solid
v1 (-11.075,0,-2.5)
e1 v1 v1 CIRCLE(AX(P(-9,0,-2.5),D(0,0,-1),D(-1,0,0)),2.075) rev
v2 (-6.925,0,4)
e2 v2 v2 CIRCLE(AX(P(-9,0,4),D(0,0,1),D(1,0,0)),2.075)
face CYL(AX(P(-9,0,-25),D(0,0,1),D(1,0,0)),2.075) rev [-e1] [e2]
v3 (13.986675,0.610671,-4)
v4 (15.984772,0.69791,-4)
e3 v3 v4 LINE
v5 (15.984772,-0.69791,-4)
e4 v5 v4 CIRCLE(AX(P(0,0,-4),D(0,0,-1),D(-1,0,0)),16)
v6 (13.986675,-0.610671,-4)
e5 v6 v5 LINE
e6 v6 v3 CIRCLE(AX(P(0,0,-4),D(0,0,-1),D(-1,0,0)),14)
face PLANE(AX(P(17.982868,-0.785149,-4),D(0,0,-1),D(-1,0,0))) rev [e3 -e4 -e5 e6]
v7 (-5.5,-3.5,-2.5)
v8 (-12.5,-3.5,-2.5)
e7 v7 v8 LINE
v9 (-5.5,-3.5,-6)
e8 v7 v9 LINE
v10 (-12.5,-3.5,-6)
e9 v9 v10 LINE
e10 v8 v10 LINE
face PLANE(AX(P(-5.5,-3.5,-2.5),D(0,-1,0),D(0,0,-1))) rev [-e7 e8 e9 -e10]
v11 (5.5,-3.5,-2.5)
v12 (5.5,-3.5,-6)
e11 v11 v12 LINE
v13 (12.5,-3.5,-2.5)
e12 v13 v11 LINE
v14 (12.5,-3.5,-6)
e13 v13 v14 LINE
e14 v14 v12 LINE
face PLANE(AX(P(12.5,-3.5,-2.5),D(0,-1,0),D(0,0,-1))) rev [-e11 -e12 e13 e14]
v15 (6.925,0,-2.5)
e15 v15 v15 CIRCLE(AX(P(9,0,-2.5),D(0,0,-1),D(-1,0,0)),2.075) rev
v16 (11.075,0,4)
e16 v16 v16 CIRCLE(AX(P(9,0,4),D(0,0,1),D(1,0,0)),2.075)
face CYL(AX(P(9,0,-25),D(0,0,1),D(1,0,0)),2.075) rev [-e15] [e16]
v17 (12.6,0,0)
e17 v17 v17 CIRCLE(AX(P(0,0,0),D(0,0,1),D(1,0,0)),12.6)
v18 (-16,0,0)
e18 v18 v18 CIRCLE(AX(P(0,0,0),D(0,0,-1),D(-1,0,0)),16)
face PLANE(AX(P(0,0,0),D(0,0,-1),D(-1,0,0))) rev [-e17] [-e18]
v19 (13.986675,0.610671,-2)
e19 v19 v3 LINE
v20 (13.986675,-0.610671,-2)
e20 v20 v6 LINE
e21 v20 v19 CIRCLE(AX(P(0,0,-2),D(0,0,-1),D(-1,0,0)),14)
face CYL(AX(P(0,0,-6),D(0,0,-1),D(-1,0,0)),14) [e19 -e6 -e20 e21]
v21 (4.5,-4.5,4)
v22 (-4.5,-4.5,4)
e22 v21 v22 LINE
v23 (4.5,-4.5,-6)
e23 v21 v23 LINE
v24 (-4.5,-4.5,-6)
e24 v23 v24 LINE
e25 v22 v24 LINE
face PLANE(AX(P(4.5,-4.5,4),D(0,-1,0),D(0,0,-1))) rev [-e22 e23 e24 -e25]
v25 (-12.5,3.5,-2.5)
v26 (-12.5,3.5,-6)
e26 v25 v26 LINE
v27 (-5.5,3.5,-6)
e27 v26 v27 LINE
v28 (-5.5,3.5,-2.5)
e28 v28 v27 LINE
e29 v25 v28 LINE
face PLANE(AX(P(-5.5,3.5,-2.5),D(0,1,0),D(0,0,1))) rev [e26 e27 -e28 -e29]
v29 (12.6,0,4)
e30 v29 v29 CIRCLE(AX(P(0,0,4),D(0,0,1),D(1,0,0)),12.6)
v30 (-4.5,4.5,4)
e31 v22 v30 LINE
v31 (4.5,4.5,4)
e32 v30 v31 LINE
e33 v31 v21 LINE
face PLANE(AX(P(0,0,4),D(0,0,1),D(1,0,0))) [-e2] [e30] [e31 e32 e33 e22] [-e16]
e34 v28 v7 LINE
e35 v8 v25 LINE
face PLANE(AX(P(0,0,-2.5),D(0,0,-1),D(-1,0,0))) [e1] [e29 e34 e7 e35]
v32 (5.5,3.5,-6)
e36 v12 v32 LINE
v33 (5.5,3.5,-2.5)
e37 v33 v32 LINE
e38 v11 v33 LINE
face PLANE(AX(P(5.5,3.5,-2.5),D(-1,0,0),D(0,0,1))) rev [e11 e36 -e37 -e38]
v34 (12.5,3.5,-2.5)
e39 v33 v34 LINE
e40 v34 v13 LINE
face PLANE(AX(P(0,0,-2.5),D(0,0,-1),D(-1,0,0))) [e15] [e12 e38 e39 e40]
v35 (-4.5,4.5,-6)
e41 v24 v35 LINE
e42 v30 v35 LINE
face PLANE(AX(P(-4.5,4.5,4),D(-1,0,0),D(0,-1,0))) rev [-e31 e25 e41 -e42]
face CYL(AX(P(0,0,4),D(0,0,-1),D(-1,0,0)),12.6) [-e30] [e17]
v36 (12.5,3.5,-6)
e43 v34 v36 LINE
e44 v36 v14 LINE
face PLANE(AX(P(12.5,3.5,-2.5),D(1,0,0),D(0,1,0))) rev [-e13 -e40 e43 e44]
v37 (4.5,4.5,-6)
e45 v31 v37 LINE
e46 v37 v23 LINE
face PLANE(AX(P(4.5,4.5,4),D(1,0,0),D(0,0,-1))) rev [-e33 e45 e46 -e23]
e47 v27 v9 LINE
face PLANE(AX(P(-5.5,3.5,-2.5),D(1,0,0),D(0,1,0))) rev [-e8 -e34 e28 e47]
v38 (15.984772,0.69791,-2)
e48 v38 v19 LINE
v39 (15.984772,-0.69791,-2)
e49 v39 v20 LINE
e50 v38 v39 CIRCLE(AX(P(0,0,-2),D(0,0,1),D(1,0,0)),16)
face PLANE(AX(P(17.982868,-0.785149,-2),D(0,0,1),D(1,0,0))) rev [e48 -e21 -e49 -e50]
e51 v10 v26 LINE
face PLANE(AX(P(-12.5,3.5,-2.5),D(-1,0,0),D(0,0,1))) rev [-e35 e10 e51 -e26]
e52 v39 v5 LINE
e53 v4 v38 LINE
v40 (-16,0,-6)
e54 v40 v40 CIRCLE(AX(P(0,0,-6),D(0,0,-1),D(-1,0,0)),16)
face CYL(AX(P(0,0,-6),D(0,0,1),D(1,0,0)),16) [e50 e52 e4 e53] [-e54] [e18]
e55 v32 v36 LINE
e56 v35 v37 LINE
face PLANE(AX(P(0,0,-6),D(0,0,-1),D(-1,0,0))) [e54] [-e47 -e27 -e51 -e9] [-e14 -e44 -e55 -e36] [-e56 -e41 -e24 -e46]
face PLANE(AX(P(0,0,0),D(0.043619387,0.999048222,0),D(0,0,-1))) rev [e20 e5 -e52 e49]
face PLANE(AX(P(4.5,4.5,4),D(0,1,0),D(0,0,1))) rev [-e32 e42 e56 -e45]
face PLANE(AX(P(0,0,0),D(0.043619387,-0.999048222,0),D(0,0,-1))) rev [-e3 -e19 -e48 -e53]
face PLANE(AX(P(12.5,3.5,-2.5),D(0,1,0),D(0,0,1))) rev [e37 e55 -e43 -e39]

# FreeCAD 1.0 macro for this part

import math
import FreeCAD as App
import Part
import Sketcher

V = App.Vector
Q = App.Units.Quantity


def add_polygon(sketch, points):
    """Adds a closed chain of lines whose ends are joined by coincident constraints."""
    first, n = sketch.GeometryCount, len(points)
    for a, b in zip(points, points[1:] + points[:1]):
        sketch.addGeometry(Part.LineSegment(App.Vector(*a, 0), App.Vector(*b, 0)), False)
    for i in range(n):
        sketch.addConstraint(Sketcher.Constraint("Coincident", first + i, 2, first + (i + 1) % n, 1))

doc = App.newDocument("Part")
body = doc.addObject("PartDesign::Body", "Body")

# Sketch on XY plane
sketch1 = body.newObject("Sketcher::SketchObject", "Sketch")
sketch1.AttachmentSupport = (doc.getObject("XY_Plane"), [""])
sketch1.MapMode = "FlatFace"
sketch1.addGeometry(Part.Circle(V(0, 0, 0), V(0, 0, 1), 13), False)
sketch1.addConstraint(Sketcher.Constraint("Coincident", 0, 3, -1, 1))
sketch1.addConstraint(Sketcher.Constraint("Diameter", 0, Q("25.2 mm")))
pad1 = body.newObject("PartDesign::Pad", "Pad")
pad1.Profile = sketch1
pad1.Length = 4

# Sketch on XY plane
sketch2 = body.newObject("Sketcher::SketchObject", "Sketch001")
sketch2.AttachmentSupport = (doc.getObject("XY_Plane"), [""])
sketch2.MapMode = "FlatFace"
sketch2.addGeometry(Part.Circle(V(0, 0, 0), V(0, 0, 1), 16), False)
sketch2.addConstraint(Sketcher.Constraint("Coincident", 0, 3, -1, 1))
sketch2.addConstraint(Sketcher.Constraint("Diameter", 0, Q("32 mm")))
pad2 = body.newObject("PartDesign::Pad", "Pad001")
pad2.Profile = sketch2
pad2.Length = 6
pad2.Reversed = True

# Sketch on XY plane
sketch3 = body.newObject("Sketcher::SketchObject", "Sketch002")
sketch3.AttachmentSupport = (doc.getObject("XY_Plane"), [""])
sketch3.MapMode = "FlatFace"
sketch3.AttachmentOffset = App.Placement(V(0, 0, 4), App.Rotation())
sketch3.addGeometry(Part.Circle(V(-9, 0, 0), V(0, 0, 1), 2.1), False)
sketch3.addGeometry(Part.Circle(V(9, 0, 0), V(0, 0, 1), 2.1), False)
sketch3.addConstraint(Sketcher.Constraint("Equal", 0, 1))
sketch3.addConstraint(Sketcher.Constraint("Symmetric", 0, 3, 1, 3, -1, 1))
sketch3.addConstraint(Sketcher.Constraint("PointOnObject", 0, 3, -1))
sketch3.addConstraint(Sketcher.Constraint("Diameter", 0, Q("4.15 mm")))
sketch3.addConstraint(Sketcher.Constraint("DistanceX", 0, 3, -1, 1, Q("9 mm")))
pocket1 = body.newObject("PartDesign::Pocket", "Pocket")
pocket1.Profile = sketch3
pocket1.Length = 29

# Sketch on XY plane
sketch4 = body.newObject("Sketcher::SketchObject", "Sketch003")
sketch4.AttachmentSupport = (doc.getObject("XY_Plane"), [""])
sketch4.MapMode = "FlatFace"
sketch4.AttachmentOffset = App.Placement(V(0, 0, -6), App.Rotation())
add_polygon(sketch4, [(12, 4), (12, -4), (6, -4), (6, 4)])  # lines 0-3
add_polygon(sketch4, [(-6, 4), (-6, -4), (-12, -4), (-12, 4)])  # lines 4-7
sketch4.addConstraint(Sketcher.Constraint("Vertical", 0))
sketch4.addConstraint(Sketcher.Constraint("Horizontal", 1))
sketch4.addConstraint(Sketcher.Constraint("Vertical", 2))
sketch4.addConstraint(Sketcher.Constraint("Horizontal", 3))
sketch4.addConstraint(Sketcher.Constraint("Vertical", 4))
sketch4.addConstraint(Sketcher.Constraint("Horizontal", 5))
sketch4.addConstraint(Sketcher.Constraint("Vertical", 6))
sketch4.addConstraint(Sketcher.Constraint("Horizontal", 7))
sketch4.addConstraint(Sketcher.Constraint("Symmetric", 2, 2, 4, 2, -1, 1))
sketch4.addConstraint(Sketcher.Constraint("Symmetric", 0, 2, 6, 2, -1, 1))
sketch4.addConstraint(Sketcher.Constraint("Horizontal", 1, 2, 4, 2))
sketch4.addConstraint(Sketcher.Constraint("Equal", 7, 0))
sketch4.addConstraint(Sketcher.Constraint("DistanceX", 1, 2, 1, 1, Q("7 mm")))
sketch4.addConstraint(Sketcher.Constraint("DistanceX", 4, 2, 1, 2, Q("11 mm")))
pocket2 = body.newObject("PartDesign::Pocket", "Pocket001")
pocket2.Profile = sketch4
pocket2.Length = 3.5
pocket2.Reversed = True

# Sketch on XY plane
sketch5 = body.newObject("Sketcher::SketchObject", "Sketch004")
sketch5.AttachmentSupport = (doc.getObject("XY_Plane"), [""])
sketch5.MapMode = "FlatFace"
sketch5.AttachmentOffset = App.Placement(V(0, 0, -6), App.Rotation())
sketch5.addGeometry(Part.LineSegment(V(1.5, -0.7, 0), V(-1.5, -0.7, 0)), False)
sketch5.addGeometry(Part.ArcOfCircle(Part.Circle(V(0, 0, 0), V(0, 0, 1), 1.6), math.radians(-26), math.radians(206)), False)
sketch5.addConstraint(Sketcher.Constraint("Coincident", 0, 1, 1, 1))
sketch5.addConstraint(Sketcher.Constraint("Coincident", 1, 2, 0, 2))
sketch5.addConstraint(Sketcher.Constraint("Horizontal", 0))
sketch5.addConstraint(Sketcher.Constraint("Coincident", 1, 3, -1, 1))
sketch5.addConstraint(Sketcher.Constraint("Radius", 1, Q("1.625 mm")))
sketch5.addConstraint(Sketcher.Constraint("DistanceY", 0, 1, -1, 1, Q("0.7 mm")))
pocket3 = body.newObject("PartDesign::Pocket", "Pocket002")
pocket3.Profile = sketch5
pocket3.Length = 31
pocket3.Reversed = True

# Sketch on XY plane
sketch6 = body.newObject("Sketcher::SketchObject", "Sketch005")
sketch6.AttachmentSupport = (doc.getObject("XY_Plane"), [""])
sketch6.MapMode = "FlatFace"
sketch6.AttachmentOffset = App.Placement(V(0, 0, -6), App.Rotation())
add_polygon(sketch6, [(4, 4), (4, -4), (-4, -4), (-4, 4)])  # lines 0-3
sketch6.addConstraint(Sketcher.Constraint("Vertical", 0))
sketch6.addConstraint(Sketcher.Constraint("Horizontal", 1))
sketch6.addConstraint(Sketcher.Constraint("Vertical", 2))
sketch6.addConstraint(Sketcher.Constraint("Horizontal", 3))
sketch6.addConstraint(Sketcher.Constraint("Symmetric", 0, 2, 2, 2, -1, 1))
sketch6.addConstraint(Sketcher.Constraint("Equal", 3, 0))
sketch6.addConstraint(Sketcher.Constraint("DistanceX", 1, 2, 1, 1, Q("9 mm")))
pocket4 = body.newObject("PartDesign::Pocket", "Pocket003")
pocket4.Profile = sketch6
pocket4.Length = 10
pocket4.Reversed = True

# Sketch on XZ plane
sketch7 = body.newObject("Sketcher::SketchObject", "Sketch006")
sketch7.AttachmentSupport = (doc.getObject("XZ_Plane"), [""])
sketch7.MapMode = "FlatFace"
add_polygon(sketch7, [(-18, -4), (-18, -2), (-14, -2), (-14, -4)])  # lines 0-3
sketch7.addConstraint(Sketcher.Constraint("Vertical", 0))
sketch7.addConstraint(Sketcher.Constraint("Horizontal", 1))
sketch7.addConstraint(Sketcher.Constraint("Vertical", 2))
sketch7.addConstraint(Sketcher.Constraint("Horizontal", 3))
sketch7.addConstraint(Sketcher.Constraint("DistanceX", 1, 1, 1, 2, Q("4 mm")))
sketch7.addConstraint(Sketcher.Constraint("DistanceY", 0, 1, 0, 2, Q("2 mm")))
sketch7.addConstraint(Sketcher.Constraint("DistanceX", 0, 2, -1, 1, Q("18 mm")))
sketch7.addConstraint(Sketcher.Constraint("DistanceY", 0, 2, -1, 1, Q("2 mm")))
groove = body.newObject("PartDesign::Groove", "Groove")
groove.Profile = sketch7
groove.ReferenceAxis = (sketch7, ["V_Axis"])
groove.Angle = 177.5
doc.recompute()

mirrored = body.newObject("PartDesign::Mirrored", "Mirrored")
mirrored.Originals = [groove]
mirrored.MirrorPlane = (doc.getObject("XZ_Plane"), [""])
body.Tip = mirrored

doc.recompute()
